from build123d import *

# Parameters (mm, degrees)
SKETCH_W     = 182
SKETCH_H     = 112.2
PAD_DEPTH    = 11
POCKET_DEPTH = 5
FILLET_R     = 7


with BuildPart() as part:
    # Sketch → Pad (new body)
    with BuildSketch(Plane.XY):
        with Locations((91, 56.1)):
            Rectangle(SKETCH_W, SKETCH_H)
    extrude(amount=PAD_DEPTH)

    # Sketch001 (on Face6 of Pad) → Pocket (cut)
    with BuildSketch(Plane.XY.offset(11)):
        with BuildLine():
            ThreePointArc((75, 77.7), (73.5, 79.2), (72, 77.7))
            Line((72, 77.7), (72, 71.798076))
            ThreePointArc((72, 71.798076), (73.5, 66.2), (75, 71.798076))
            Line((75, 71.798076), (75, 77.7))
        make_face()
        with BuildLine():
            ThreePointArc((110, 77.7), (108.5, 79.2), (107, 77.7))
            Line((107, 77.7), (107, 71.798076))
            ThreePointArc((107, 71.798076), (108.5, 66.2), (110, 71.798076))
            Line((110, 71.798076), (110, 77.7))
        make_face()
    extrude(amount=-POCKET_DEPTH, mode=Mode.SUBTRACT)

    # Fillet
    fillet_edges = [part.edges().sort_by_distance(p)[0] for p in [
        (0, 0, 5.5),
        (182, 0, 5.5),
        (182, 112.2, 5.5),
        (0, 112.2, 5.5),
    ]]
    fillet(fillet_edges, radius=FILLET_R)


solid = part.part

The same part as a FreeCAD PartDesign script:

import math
import FreeCAD as App
import Part
import Sketcher
from FreeCAD import Vector
Q = App.Units.Quantity


def edges_at(feature, points):
    """Names of the edges that pass closest to the given points."""
    edges = feature.Shape.Edges
    near = lambda p: min(range(len(edges)), key=lambda i: edges[i].distToShape(Part.Vertex(*p))[0])
    return sorted({f"Edge{near(p) + 1}" for p in points})

doc = App.newDocument("Part")
params = doc.addObject("Spreadsheet::Sheet", "Params")
for row, (alias, value) in enumerate([
    ("sketch1_width", "182 mm"),
    ("sketch1_height", "112.2 mm"),
    ("pad1_length", "11 mm"),
    ("sketch2_radius", "3 mm"),
    ("sketch2_radius2", "1.5 mm"),
    ("pocket1_length", "5 mm"),
    ("fillet_radius", "7 mm"),
], start=1):
    params.set(f"A{row}", alias)
    params.set(f"B{row}", "=" + value)
    params.setAlias(f"B{row}", alias)

body = doc.addObject("PartDesign::Body", "Body")

sketch1 = doc.addObject("Sketcher::SketchObject", "Sketch")
body.addObject(sketch1)
sketch1.AttachmentSupport = (doc.XY_Plane, [""])
sketch1.MapMode = "FlatFace"
sketch1.addGeometry([
    Part.LineSegment(Vector(0, 112, 0), Vector(0, 0, 0)),
    Part.LineSegment(Vector(0, 0, 0), Vector(182, 0, 0)),
    Part.LineSegment(Vector(182, 0, 0), Vector(182, 112, 0)),
    Part.LineSegment(Vector(182, 112, 0), Vector(0, 112, 0)),
], False)
sketch1.addConstraint([
    Sketcher.Constraint("Coincident", 0, 2, 1, 1),
    Sketcher.Constraint("Coincident", 1, 2, 2, 1),
    Sketcher.Constraint("Coincident", 2, 2, 3, 1),
    Sketcher.Constraint("Coincident", 3, 2, 0, 1),
    Sketcher.Constraint("Vertical", 0),
    Sketcher.Constraint("Horizontal", 1),
    Sketcher.Constraint("Vertical", 2),
    Sketcher.Constraint("Horizontal", 3),
    Sketcher.Constraint("Coincident", 0, 2, -1, 1),
    Sketcher.Constraint("DistanceX", 1, 1, 1, 2, Q("182 mm")),
    Sketcher.Constraint("DistanceY", 0, 2, 0, 1, Q("112.2 mm")),
])
sketch1.setExpression("Constraints[9]", "Params.sketch1_width")
sketch1.setExpression("Constraints[10]", "Params.sketch1_height")
pad1 = doc.addObject("PartDesign::Pad", "Pad")
body.addObject(pad1)
pad1.Profile = sketch1
pad1.setExpression("Length", "Params.pad1_length")

sketch2 = doc.addObject("Sketcher::SketchObject", "Sketch001")
body.addObject(sketch2)
sketch2.AttachmentSupport = (doc.XY_Plane, [""])
sketch2.MapMode = "FlatFace"
sketch2.AttachmentOffset = App.Placement(Vector(0, 0, 11), App.Rotation())
sketch2.addGeometry([
    Part.ArcOfCircle(Part.Circle(Vector(73.5, 77.7, 0), Vector(0, 0, 1), 1.5), math.radians(0), math.radians(180)),
    Part.LineSegment(Vector(72, 77.7, 0), Vector(72, 71.8, 0)),
    Part.ArcOfCircle(Part.Circle(Vector(73.5, 69.2, 0), Vector(0, 0, 1), 3), math.radians(120), math.radians(420)),
    Part.LineSegment(Vector(75, 71.8, 0), Vector(75, 77.7, 0)),
    Part.ArcOfCircle(Part.Circle(Vector(108.5, 77.7, 0), Vector(0, 0, 1), 1.5), math.radians(0), math.radians(180)),
    Part.LineSegment(Vector(107, 77.7, 0), Vector(107, 71.8, 0)),
    Part.ArcOfCircle(Part.Circle(Vector(108.5, 69.2, 0), Vector(0, 0, 1), 3), math.radians(120), math.radians(420)),
    Part.LineSegment(Vector(110, 71.8, 0), Vector(110, 77.7, 0)),
], False)
sketch2.addConstraint([
    Sketcher.Constraint("Tangent", 0, 2, 1, 1),
    Sketcher.Constraint("Coincident", 1, 2, 2, 1),
    Sketcher.Constraint("Coincident", 2, 2, 3, 1),
    Sketcher.Constraint("Tangent", 3, 2, 0, 1),
    Sketcher.Constraint("Tangent", 4, 2, 5, 1),
    Sketcher.Constraint("Coincident", 5, 2, 6, 1),
    Sketcher.Constraint("Coincident", 6, 2, 7, 1),
    Sketcher.Constraint("Tangent", 7, 2, 4, 1),
    Sketcher.Constraint("Vertical", 1),
    Sketcher.Constraint("Vertical", 3),
    Sketcher.Constraint("Vertical", 5),
    Sketcher.Constraint("Vertical", 7),
    Sketcher.Constraint("Equal", 0, 4),
    Sketcher.Constraint("Equal", 2, 6),
    Sketcher.Constraint("Horizontal", 0, 3, 4, 3),
    Sketcher.Constraint("Horizontal", 2, 3, 6, 3),
    Sketcher.Constraint("Horizontal", 1, 2, 2, 2),
    Sketcher.Constraint("Horizontal", 2, 2, 5, 2),
    Sketcher.Constraint("Radius", 2, Q("3 mm")),
    Sketcher.Constraint("Radius", 0, Q("1.5 mm")),
    Sketcher.Constraint("DistanceX", -1, 1, 0, 2, Q("72 mm")),
    Sketcher.Constraint("DistanceX", -1, 1, 4, 2, Q("107 mm")),
    Sketcher.Constraint("DistanceY", -1, 1, 0, 3, Q("77.7 mm")),
    Sketcher.Constraint("DistanceY", -1, 1, 2, 3, Q("69.2 mm")),
])
sketch2.setExpression("Constraints[18]", "Params.sketch2_radius")
sketch2.setExpression("Constraints[19]", "Params.sketch2_radius2")
pocket1 = doc.addObject("PartDesign::Pocket", "Pocket")
body.addObject(pocket1)
pocket1.Profile = sketch2
pocket1.setExpression("Length", "Params.pocket1_length")
doc.recompute()

fillet = doc.addObject("PartDesign::Fillet", "Fillet")
body.addObject(fillet)
fillet.Base = (pocket1, edges_at(pocket1, [
    (0, 0, 5.5),
    (182, 0, 5.5),
    (182, 112.2, 5.5),
    (0, 112.2, 5.5),
]))
fillet.setExpression("Radius", "Params.fillet_radius")

doc.recompute()
